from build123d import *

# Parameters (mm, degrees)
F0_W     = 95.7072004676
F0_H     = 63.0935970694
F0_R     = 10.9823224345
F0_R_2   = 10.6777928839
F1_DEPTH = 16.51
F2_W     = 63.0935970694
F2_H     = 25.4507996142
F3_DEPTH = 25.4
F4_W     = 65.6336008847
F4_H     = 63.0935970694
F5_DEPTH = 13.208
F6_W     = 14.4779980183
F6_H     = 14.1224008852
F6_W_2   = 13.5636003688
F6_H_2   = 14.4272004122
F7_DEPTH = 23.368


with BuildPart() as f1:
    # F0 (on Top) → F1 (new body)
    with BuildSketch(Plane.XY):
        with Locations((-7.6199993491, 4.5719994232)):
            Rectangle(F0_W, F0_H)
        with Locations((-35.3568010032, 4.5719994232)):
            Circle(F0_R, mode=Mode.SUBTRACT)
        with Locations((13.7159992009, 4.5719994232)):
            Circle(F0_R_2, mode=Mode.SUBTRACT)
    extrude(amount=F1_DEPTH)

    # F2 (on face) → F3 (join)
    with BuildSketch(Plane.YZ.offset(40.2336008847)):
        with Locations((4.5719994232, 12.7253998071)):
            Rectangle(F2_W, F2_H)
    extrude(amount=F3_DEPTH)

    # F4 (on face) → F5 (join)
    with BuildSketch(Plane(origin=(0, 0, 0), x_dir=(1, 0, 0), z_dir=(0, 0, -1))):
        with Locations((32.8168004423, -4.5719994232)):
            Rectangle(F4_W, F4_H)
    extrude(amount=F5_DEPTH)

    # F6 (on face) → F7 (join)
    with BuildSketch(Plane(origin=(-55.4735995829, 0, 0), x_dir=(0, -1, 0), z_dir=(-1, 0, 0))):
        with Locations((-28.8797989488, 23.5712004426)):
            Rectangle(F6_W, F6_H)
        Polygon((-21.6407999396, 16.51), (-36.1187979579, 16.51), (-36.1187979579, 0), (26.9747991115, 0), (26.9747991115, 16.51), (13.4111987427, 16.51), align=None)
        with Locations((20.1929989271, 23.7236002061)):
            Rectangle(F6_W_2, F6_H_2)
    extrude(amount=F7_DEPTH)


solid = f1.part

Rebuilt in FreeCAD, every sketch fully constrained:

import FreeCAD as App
import Part
import Sketcher

V = App.Vector
Q = App.Units.Quantity

doc = App.newDocument("Part")
body = doc.addObject("PartDesign::Body", "Body")

sketch1 = doc.addObject("Sketcher::SketchObject", "Sketch")
body.addObject(sketch1)
sketch1.AttachmentSupport = (doc.XY_Plane, [""])
sketch1.MapMode = "FlatFace"
sketch1.addGeometry(Part.LineSegment(V(-55.4736, 36.118798, 0), V(-55.4736, -26.974799, 0)), False)
sketch1.addGeometry(Part.LineSegment(V(-55.4736, -26.974799, 0), V(40.233601, -26.974799, 0)), False)
sketch1.addGeometry(Part.LineSegment(V(40.233601, -26.974799, 0), V(40.233601, 36.118798, 0)), False)
sketch1.addGeometry(Part.LineSegment(V(40.233601, 36.118798, 0), V(-55.4736, 36.118798, 0)), False)
sketch1.addGeometry(Part.Circle(V(-35.356801, 4.571999, 0), V(0, 0, 1), 10.982322), False)
sketch1.addGeometry(Part.Circle(V(13.715999, 4.571999, 0), V(0, 0, 1), 10.677793), False)
sketch1.addConstraint(Sketcher.Constraint("Coincident", 0, 2, 1, 1))
sketch1.addConstraint(Sketcher.Constraint("Coincident", 1, 2, 2, 1))
sketch1.addConstraint(Sketcher.Constraint("Coincident", 2, 2, 3, 1))
sketch1.addConstraint(Sketcher.Constraint("Coincident", 3, 2, 0, 1))
sketch1.addConstraint(Sketcher.Constraint("Vertical", 0))
sketch1.addConstraint(Sketcher.Constraint("Horizontal", 1))
sketch1.addConstraint(Sketcher.Constraint("Vertical", 2))
sketch1.addConstraint(Sketcher.Constraint("Horizontal", 3))
sketch1.addConstraint(Sketcher.Constraint("Horizontal", 4, 3, 5, 3))
sketch1.addConstraint(Sketcher.Constraint("DistanceX", 1, 1, 1, 2, Q("3.768 in")))
sketch1.addConstraint(Sketcher.Constraint("DistanceY", 0, 2, 0, 1, Q("2.4839999 in")))
sketch1.addConstraint(Sketcher.Constraint("DistanceY", -1, 1, 4, 3, Q("0.18 in")))
sketch1.addConstraint(Sketcher.Constraint("DistanceX", -1, 1, 5, 3, Q("0.54 in")))
sketch1.addConstraint(Sketcher.Constraint("DistanceX", 4, 3, -1, 1, Q("1.392 in")))
sketch1.addConstraint(Sketcher.Constraint("DistanceX", 0, 2, -1, 1, Q("2.184 in")))
sketch1.addConstraint(Sketcher.Constraint("DistanceY", 0, 2, -1, 1, Q("1.062 in")))
sketch1.addConstraint(Sketcher.Constraint("Diameter", 4, 21.964645))
sketch1.addConstraint(Sketcher.Constraint("Diameter", 5, 21.355586))
pad1 = doc.addObject("PartDesign::Pad", "Pad")
body.addObject(pad1)
pad1.Profile = sketch1
pad1.Length = Q("0.65 in")

sketch2 = doc.addObject("Sketcher::SketchObject", "Sketch001")
body.addObject(sketch2)
sketch2.AttachmentSupport = (doc.YZ_Plane, [""])
sketch2.MapMode = "FlatFace"
sketch2.AttachmentOffset = App.Placement(V(0, 0, 1.584 * 25.4), App.Rotation())
sketch2.addGeometry(Part.LineSegment(V(-26.974799, 25.4508, 0), V(-26.974799, 0, 0)), False)
sketch2.addGeometry(Part.LineSegment(V(-26.974799, 0, 0), V(36.118798, 0, 0)), False)
sketch2.addGeometry(Part.LineSegment(V(36.118798, 0, 0), V(36.118798, 25.4508, 0)), False)
sketch2.addGeometry(Part.LineSegment(V(36.118798, 25.4508, 0), V(-26.974799, 25.4508, 0)), False)
sketch2.addConstraint(Sketcher.Constraint("Coincident", 0, 2, 1, 1))
sketch2.addConstraint(Sketcher.Constraint("Coincident", 1, 2, 2, 1))
sketch2.addConstraint(Sketcher.Constraint("Coincident", 2, 2, 3, 1))
sketch2.addConstraint(Sketcher.Constraint("Coincident", 3, 2, 0, 1))
sketch2.addConstraint(Sketcher.Constraint("Vertical", 0))
sketch2.addConstraint(Sketcher.Constraint("Horizontal", 1))
sketch2.addConstraint(Sketcher.Constraint("Vertical", 2))
sketch2.addConstraint(Sketcher.Constraint("Horizontal", 3))
sketch2.addConstraint(Sketcher.Constraint("PointOnObject", 0, 2, -1))
sketch2.addConstraint(Sketcher.Constraint("DistanceX", 1, 1, 1, 2, Q("2.4839999 in")))
sketch2.addConstraint(Sketcher.Constraint("DistanceY", 0, 2, 0, 1, Q("1.002 in")))
sketch2.addConstraint(Sketcher.Constraint("DistanceX", 0, 2, -1, 1, Q("1.062 in")))
pad2 = doc.addObject("PartDesign::Pad", "Pad001")
body.addObject(pad2)
pad2.Profile = sketch2
pad2.Length = Q("1 in")

sketch3 = doc.addObject("Sketcher::SketchObject", "Sketch002")
body.addObject(sketch3)
sketch3.AttachmentSupport = (doc.XY_Plane, [""])
sketch3.MapMode = "FlatFace"
sketch3.addGeometry(Part.LineSegment(V(0, -26.974799, 0), V(0, 36.118798, 0)), False)
sketch3.addGeometry(Part.LineSegment(V(0, 36.118798, 0), V(65.633601, 36.118798, 0)), False)
sketch3.addGeometry(Part.LineSegment(V(65.633601, 36.118798, 0), V(65.633601, -26.974799, 0)), False)
sketch3.addGeometry(Part.LineSegment(V(65.633601, -26.974799, 0), V(0, -26.974799, 0)), False)
sketch3.addConstraint(Sketcher.Constraint("Coincident", 0, 2, 1, 1))
sketch3.addConstraint(Sketcher.Constraint("Coincident", 1, 2, 2, 1))
sketch3.addConstraint(Sketcher.Constraint("Coincident", 2, 2, 3, 1))
sketch3.addConstraint(Sketcher.Constraint("Coincident", 3, 2, 0, 1))
sketch3.addConstraint(Sketcher.Constraint("Vertical", 0))
sketch3.addConstraint(Sketcher.Constraint("Horizontal", 1))
sketch3.addConstraint(Sketcher.Constraint("Vertical", 2))
sketch3.addConstraint(Sketcher.Constraint("Horizontal", 3))
sketch3.addConstraint(Sketcher.Constraint("PointOnObject", 0, 2, -2))
sketch3.addConstraint(Sketcher.Constraint("DistanceX", 1, 1, 1, 2, Q("2.584 in")))
sketch3.addConstraint(Sketcher.Constraint("DistanceY", 0, 1, 0, 2, Q("2.4839999 in")))
sketch3.addConstraint(Sketcher.Constraint("DistanceY", -1, 1, 0, 2, Q("1.4219999 in")))
pad3 = doc.addObject("PartDesign::Pad", "Pad002")
body.addObject(pad3)
pad3.Profile = sketch3
pad3.Length = Q("0.52 in")
pad3.Reversed = True

sketch4 = doc.addObject("Sketcher::SketchObject", "Sketch003")
body.addObject(sketch4)
sketch4.AttachmentSupport = (doc.YZ_Plane, [""])
sketch4.MapMode = "FlatFace"
sketch4.AttachmentOffset = App.Placement(V(0, 0, -2.184 * 25.4), App.Rotation())
sketch4.addGeometry(Part.LineSegment(V(36.118798, 30.632401, 0), V(36.118798, 0, 0)), False)
sketch4.addGeometry(Part.LineSegment(V(36.118798, 0, 0), V(-26.974799, 0, 0)), False)
sketch4.addGeometry(Part.LineSegment(V(-26.974799, 0, 0), V(-26.974799, 30.9372, 0)), False)
sketch4.addGeometry(Part.LineSegment(V(-26.974799, 30.9372, 0), V(-13.411199, 30.9372, 0)), False)
sketch4.addGeometry(Part.LineSegment(V(-13.411199, 30.9372, 0), V(-13.411199, 16.51, 0)), False)
sketch4.addGeometry(Part.LineSegment(V(-13.411199, 16.51, 0), V(21.6408, 16.51, 0)), False)
sketch4.addGeometry(Part.LineSegment(V(21.6408, 16.51, 0), V(21.6408, 30.632401, 0)), False)
sketch4.addGeometry(Part.LineSegment(V(21.6408, 30.632401, 0), V(36.118798, 30.632401, 0)), False)
sketch4.addConstraint(Sketcher.Constraint("Coincident", 0, 2, 1, 1))
sketch4.addConstraint(Sketcher.Constraint("Coincident", 1, 2, 2, 1))
sketch4.addConstraint(Sketcher.Constraint("Coincident", 2, 2, 3, 1))
sketch4.addConstraint(Sketcher.Constraint("Coincident", 3, 2, 4, 1))
sketch4.addConstraint(Sketcher.Constraint("Coincident", 4, 2, 5, 1))
sketch4.addConstraint(Sketcher.Constraint("Coincident", 5, 2, 6, 1))
sketch4.addConstraint(Sketcher.Constraint("Coincident", 6, 2, 7, 1))
sketch4.addConstraint(Sketcher.Constraint("Coincident", 7, 2, 0, 1))
sketch4.addConstraint(Sketcher.Constraint("Vertical", 0))
sketch4.addConstraint(Sketcher.Constraint("Horizontal", 1))
sketch4.addConstraint(Sketcher.Constraint("Vertical", 2))
sketch4.addConstraint(Sketcher.Constraint("Horizontal", 3))
sketch4.addConstraint(Sketcher.Constraint("Vertical", 4))
sketch4.addConstraint(Sketcher.Constraint("Horizontal", 5))
sketch4.addConstraint(Sketcher.Constraint("Vertical", 6))
sketch4.addConstraint(Sketcher.Constraint("Horizontal", 7))
sketch4.addConstraint(Sketcher.Constraint("PointOnObject", 0, 2, -1))
sketch4.addConstraint(Sketcher.Constraint("DistanceX", 5, 1, 5, 2, Q("1.3799999 in")))
sketch4.addConstraint(Sketcher.Constraint("DistanceX", 7, 1, 7, 2, Q("0.5699999 in")))
sketch4.addConstraint(Sketcher.Constraint("DistanceX", 1, 2, 1, 1, Q("2.4839999 in")))
sketch4.addConstraint(Sketcher.Constraint("DistanceY", 0, 2, 0, 1, Q("1.206 in")))
sketch4.addConstraint(Sketcher.Constraint("DistanceY", 2, 1, 2, 2, Q("1.218 in")))
sketch4.addConstraint(Sketcher.Constraint("DistanceY", 4, 2, 4, 1, Q("0.568 in")))
sketch4.addConstraint(Sketcher.Constraint("DistanceX", -1, 1, 0, 2, Q("1.4219999 in")))
pad4 = doc.addObject("PartDesign::Pad", "Pad003")
body.addObject(pad4)
pad4.Profile = sketch4
pad4.Length = Q("0.92 in")
pad4.Reversed = True

doc.recompute()
